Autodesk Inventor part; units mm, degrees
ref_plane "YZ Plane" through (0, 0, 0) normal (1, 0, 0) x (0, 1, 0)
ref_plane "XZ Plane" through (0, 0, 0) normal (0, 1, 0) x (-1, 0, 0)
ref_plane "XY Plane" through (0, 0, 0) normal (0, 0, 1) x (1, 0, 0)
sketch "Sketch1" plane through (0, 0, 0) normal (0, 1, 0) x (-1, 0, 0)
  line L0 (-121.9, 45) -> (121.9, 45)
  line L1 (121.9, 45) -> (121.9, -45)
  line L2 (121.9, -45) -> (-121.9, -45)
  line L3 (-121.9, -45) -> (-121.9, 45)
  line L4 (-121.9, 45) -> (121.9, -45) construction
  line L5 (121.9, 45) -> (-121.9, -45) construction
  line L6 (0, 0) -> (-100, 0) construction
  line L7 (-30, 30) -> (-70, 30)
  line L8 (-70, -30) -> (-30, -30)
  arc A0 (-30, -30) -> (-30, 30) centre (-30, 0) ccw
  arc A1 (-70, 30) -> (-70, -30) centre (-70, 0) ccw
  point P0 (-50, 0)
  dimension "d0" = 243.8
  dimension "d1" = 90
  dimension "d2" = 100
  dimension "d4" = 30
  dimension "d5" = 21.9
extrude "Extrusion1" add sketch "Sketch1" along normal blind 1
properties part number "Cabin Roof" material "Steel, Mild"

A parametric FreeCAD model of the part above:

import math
import FreeCAD as App
import Part
import Sketcher
Q = App.Units.Quantity


def add_polygon(sketch, points):
    """Adds a closed chain of lines whose ends are joined by coincident constraints."""
    first, n = sketch.GeometryCount, len(points)
    for a, b in zip(points, points[1:] + points[:1]):
        sketch.addGeometry(Part.LineSegment(App.Vector(*a, 0), App.Vector(*b, 0)), False)
    for i in range(n):
        sketch.addConstraint(Sketcher.Constraint("Coincident", first + i, 2, first + (i + 1) % n, 1))

doc = App.newDocument("Part")
body = doc.addObject("PartDesign::Body", "Body")

# Sketch on XZ plane
sketch1 = body.newObject("Sketcher::SketchObject", "Sketch")
sketch1.AttachmentSupport = (doc.getObject("XZ_Plane"), [""])
sketch1.MapMode = "FlatFace"
add_polygon(sketch1, [(-122, 45), (122, 45), (122, -45), (-122, -45)])  # lines 0-3
sketch1.addGeometry(Part.LineSegment(App.Vector(70, 30, 0), App.Vector(30, 30, 0)), False)  # 4
sketch1.addGeometry(Part.ArcOfCircle(Part.Circle(App.Vector(30, 0, 0), App.Vector(0, 0, 1), 30), math.radians(90), math.radians(270)), False)  # 5
sketch1.addGeometry(Part.LineSegment(App.Vector(30, -30, 0), App.Vector(70, -30, 0)), False)  # 6
sketch1.addGeometry(Part.ArcOfCircle(Part.Circle(App.Vector(70, 0, 0), App.Vector(0, 0, 1), 30), math.radians(-90), math.radians(90)), False)  # 7
sketch1.addConstraint(Sketcher.Constraint("Tangent", 4, 2, 5, 1))
sketch1.addConstraint(Sketcher.Constraint("Tangent", 5, 2, 6, 1))
sketch1.addConstraint(Sketcher.Constraint("Tangent", 6, 2, 7, 1))
sketch1.addConstraint(Sketcher.Constraint("Tangent", 7, 2, 4, 1))
sketch1.addConstraint(Sketcher.Constraint("Horizontal", 0))
sketch1.addConstraint(Sketcher.Constraint("Vertical", 1))
sketch1.addConstraint(Sketcher.Constraint("Horizontal", 2))
sketch1.addConstraint(Sketcher.Constraint("Vertical", 3))
sketch1.addConstraint(Sketcher.Constraint("Horizontal", 4))
sketch1.addConstraint(Sketcher.Constraint("Horizontal", 6))
sketch1.addConstraint(Sketcher.Constraint("Symmetric", 0, 2, 2, 2, -1, 1))
sketch1.addConstraint(Sketcher.Constraint("PointOnObject", 5, 3, -1))
sketch1.addConstraint(Sketcher.Constraint("Radius", 5, Q("30 mm")))
sketch1.addConstraint(Sketcher.Constraint("DistanceY", 1, 2, 1, 1, Q("90 mm")))
sketch1.addConstraint(Sketcher.Constraint("DistanceX", 0, 1, 0, 2, Q("243.8 mm")))
sketch1.addConstraint(Sketcher.Constraint("DistanceX", -1, 1, 5, 3, Q("30 mm")))
sketch1.addConstraint(Sketcher.Constraint("DistanceX", 4, 2, 4, 1, Q("40 mm")))
pad1 = body.newObject("PartDesign::Pad", "Pad")
pad1.Profile = sketch1
pad1.Length = 1
pad1.Reversed = True

doc.recompute()
